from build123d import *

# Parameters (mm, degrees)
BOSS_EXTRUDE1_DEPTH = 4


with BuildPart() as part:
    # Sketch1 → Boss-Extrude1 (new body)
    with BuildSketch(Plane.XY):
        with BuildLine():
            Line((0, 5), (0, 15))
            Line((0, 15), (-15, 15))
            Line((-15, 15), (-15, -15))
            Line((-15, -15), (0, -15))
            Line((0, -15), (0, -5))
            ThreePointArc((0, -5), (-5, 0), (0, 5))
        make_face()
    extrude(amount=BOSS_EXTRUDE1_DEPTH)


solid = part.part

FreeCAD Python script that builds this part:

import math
import FreeCAD as App
import Part
import Sketcher
from FreeCAD import Vector
Q = App.Units.Quantity

doc = App.newDocument("Part")
body = doc.addObject("PartDesign::Body", "Body")

# Sketch on XY plane
sketch1 = doc.addObject("Sketcher::SketchObject", "Sketch")
body.addObject(sketch1)
sketch1.AttachmentSupport = (doc.XY_Plane, [""])
sketch1.MapMode = "FlatFace"
sketch1.addGeometry(Part.LineSegment(Vector(0, 5, 0), Vector(0, 15, 0)), False)
sketch1.addGeometry(Part.LineSegment(Vector(0, 15, 0), Vector(-15, 15, 0)), False)
sketch1.addGeometry(Part.LineSegment(Vector(-15, 15, 0), Vector(-15, -15, 0)), False)
sketch1.addGeometry(Part.LineSegment(Vector(-15, -15, 0), Vector(0, -15, 0)), False)
sketch1.addGeometry(Part.LineSegment(Vector(0, -15, 0), Vector(0, -5, 0)), False)
sketch1.addGeometry(Part.ArcOfCircle(Part.Circle(Vector(0, 0, 0), Vector(0, 0, 1), 5), math.radians(90), math.radians(270)), False)
sketch1.addConstraint(Sketcher.Constraint("Coincident", 0, 2, 1, 1))
sketch1.addConstraint(Sketcher.Constraint("Coincident", 1, 2, 2, 1))
sketch1.addConstraint(Sketcher.Constraint("Coincident", 2, 2, 3, 1))
sketch1.addConstraint(Sketcher.Constraint("Coincident", 3, 2, 4, 1))
sketch1.addConstraint(Sketcher.Constraint("Coincident", 4, 2, 5, 2))
sketch1.addConstraint(Sketcher.Constraint("Coincident", 5, 1, 0, 1))
sketch1.addConstraint(Sketcher.Constraint("Vertical", 0))
sketch1.addConstraint(Sketcher.Constraint("Horizontal", 1))
sketch1.addConstraint(Sketcher.Constraint("Vertical", 2))
sketch1.addConstraint(Sketcher.Constraint("Horizontal", 3))
sketch1.addConstraint(Sketcher.Constraint("Vertical", 4))
sketch1.addConstraint(Sketcher.Constraint("Coincident", 5, 3, -1, 1))
sketch1.addConstraint(Sketcher.Constraint("Symmetric", 0, 2, 3, 2, -1, 1))
sketch1.addConstraint(Sketcher.Constraint("PointOnObject", 0, 2, -2))
sketch1.addConstraint(Sketcher.Constraint("Radius", 5, Q("5 mm")))
sketch1.addConstraint(Sketcher.Constraint("DistanceX", 1, 2, 1, 1, Q("15 mm")))
sketch1.addConstraint(Sketcher.Constraint("DistanceY", 0, 1, 0, 2, Q("10 mm")))
pad1 = doc.addObject("PartDesign::Pad", "Pad")
body.addObject(pad1)
pad1.Profile = sketch1
pad1.Length = 4

doc.recompute()
